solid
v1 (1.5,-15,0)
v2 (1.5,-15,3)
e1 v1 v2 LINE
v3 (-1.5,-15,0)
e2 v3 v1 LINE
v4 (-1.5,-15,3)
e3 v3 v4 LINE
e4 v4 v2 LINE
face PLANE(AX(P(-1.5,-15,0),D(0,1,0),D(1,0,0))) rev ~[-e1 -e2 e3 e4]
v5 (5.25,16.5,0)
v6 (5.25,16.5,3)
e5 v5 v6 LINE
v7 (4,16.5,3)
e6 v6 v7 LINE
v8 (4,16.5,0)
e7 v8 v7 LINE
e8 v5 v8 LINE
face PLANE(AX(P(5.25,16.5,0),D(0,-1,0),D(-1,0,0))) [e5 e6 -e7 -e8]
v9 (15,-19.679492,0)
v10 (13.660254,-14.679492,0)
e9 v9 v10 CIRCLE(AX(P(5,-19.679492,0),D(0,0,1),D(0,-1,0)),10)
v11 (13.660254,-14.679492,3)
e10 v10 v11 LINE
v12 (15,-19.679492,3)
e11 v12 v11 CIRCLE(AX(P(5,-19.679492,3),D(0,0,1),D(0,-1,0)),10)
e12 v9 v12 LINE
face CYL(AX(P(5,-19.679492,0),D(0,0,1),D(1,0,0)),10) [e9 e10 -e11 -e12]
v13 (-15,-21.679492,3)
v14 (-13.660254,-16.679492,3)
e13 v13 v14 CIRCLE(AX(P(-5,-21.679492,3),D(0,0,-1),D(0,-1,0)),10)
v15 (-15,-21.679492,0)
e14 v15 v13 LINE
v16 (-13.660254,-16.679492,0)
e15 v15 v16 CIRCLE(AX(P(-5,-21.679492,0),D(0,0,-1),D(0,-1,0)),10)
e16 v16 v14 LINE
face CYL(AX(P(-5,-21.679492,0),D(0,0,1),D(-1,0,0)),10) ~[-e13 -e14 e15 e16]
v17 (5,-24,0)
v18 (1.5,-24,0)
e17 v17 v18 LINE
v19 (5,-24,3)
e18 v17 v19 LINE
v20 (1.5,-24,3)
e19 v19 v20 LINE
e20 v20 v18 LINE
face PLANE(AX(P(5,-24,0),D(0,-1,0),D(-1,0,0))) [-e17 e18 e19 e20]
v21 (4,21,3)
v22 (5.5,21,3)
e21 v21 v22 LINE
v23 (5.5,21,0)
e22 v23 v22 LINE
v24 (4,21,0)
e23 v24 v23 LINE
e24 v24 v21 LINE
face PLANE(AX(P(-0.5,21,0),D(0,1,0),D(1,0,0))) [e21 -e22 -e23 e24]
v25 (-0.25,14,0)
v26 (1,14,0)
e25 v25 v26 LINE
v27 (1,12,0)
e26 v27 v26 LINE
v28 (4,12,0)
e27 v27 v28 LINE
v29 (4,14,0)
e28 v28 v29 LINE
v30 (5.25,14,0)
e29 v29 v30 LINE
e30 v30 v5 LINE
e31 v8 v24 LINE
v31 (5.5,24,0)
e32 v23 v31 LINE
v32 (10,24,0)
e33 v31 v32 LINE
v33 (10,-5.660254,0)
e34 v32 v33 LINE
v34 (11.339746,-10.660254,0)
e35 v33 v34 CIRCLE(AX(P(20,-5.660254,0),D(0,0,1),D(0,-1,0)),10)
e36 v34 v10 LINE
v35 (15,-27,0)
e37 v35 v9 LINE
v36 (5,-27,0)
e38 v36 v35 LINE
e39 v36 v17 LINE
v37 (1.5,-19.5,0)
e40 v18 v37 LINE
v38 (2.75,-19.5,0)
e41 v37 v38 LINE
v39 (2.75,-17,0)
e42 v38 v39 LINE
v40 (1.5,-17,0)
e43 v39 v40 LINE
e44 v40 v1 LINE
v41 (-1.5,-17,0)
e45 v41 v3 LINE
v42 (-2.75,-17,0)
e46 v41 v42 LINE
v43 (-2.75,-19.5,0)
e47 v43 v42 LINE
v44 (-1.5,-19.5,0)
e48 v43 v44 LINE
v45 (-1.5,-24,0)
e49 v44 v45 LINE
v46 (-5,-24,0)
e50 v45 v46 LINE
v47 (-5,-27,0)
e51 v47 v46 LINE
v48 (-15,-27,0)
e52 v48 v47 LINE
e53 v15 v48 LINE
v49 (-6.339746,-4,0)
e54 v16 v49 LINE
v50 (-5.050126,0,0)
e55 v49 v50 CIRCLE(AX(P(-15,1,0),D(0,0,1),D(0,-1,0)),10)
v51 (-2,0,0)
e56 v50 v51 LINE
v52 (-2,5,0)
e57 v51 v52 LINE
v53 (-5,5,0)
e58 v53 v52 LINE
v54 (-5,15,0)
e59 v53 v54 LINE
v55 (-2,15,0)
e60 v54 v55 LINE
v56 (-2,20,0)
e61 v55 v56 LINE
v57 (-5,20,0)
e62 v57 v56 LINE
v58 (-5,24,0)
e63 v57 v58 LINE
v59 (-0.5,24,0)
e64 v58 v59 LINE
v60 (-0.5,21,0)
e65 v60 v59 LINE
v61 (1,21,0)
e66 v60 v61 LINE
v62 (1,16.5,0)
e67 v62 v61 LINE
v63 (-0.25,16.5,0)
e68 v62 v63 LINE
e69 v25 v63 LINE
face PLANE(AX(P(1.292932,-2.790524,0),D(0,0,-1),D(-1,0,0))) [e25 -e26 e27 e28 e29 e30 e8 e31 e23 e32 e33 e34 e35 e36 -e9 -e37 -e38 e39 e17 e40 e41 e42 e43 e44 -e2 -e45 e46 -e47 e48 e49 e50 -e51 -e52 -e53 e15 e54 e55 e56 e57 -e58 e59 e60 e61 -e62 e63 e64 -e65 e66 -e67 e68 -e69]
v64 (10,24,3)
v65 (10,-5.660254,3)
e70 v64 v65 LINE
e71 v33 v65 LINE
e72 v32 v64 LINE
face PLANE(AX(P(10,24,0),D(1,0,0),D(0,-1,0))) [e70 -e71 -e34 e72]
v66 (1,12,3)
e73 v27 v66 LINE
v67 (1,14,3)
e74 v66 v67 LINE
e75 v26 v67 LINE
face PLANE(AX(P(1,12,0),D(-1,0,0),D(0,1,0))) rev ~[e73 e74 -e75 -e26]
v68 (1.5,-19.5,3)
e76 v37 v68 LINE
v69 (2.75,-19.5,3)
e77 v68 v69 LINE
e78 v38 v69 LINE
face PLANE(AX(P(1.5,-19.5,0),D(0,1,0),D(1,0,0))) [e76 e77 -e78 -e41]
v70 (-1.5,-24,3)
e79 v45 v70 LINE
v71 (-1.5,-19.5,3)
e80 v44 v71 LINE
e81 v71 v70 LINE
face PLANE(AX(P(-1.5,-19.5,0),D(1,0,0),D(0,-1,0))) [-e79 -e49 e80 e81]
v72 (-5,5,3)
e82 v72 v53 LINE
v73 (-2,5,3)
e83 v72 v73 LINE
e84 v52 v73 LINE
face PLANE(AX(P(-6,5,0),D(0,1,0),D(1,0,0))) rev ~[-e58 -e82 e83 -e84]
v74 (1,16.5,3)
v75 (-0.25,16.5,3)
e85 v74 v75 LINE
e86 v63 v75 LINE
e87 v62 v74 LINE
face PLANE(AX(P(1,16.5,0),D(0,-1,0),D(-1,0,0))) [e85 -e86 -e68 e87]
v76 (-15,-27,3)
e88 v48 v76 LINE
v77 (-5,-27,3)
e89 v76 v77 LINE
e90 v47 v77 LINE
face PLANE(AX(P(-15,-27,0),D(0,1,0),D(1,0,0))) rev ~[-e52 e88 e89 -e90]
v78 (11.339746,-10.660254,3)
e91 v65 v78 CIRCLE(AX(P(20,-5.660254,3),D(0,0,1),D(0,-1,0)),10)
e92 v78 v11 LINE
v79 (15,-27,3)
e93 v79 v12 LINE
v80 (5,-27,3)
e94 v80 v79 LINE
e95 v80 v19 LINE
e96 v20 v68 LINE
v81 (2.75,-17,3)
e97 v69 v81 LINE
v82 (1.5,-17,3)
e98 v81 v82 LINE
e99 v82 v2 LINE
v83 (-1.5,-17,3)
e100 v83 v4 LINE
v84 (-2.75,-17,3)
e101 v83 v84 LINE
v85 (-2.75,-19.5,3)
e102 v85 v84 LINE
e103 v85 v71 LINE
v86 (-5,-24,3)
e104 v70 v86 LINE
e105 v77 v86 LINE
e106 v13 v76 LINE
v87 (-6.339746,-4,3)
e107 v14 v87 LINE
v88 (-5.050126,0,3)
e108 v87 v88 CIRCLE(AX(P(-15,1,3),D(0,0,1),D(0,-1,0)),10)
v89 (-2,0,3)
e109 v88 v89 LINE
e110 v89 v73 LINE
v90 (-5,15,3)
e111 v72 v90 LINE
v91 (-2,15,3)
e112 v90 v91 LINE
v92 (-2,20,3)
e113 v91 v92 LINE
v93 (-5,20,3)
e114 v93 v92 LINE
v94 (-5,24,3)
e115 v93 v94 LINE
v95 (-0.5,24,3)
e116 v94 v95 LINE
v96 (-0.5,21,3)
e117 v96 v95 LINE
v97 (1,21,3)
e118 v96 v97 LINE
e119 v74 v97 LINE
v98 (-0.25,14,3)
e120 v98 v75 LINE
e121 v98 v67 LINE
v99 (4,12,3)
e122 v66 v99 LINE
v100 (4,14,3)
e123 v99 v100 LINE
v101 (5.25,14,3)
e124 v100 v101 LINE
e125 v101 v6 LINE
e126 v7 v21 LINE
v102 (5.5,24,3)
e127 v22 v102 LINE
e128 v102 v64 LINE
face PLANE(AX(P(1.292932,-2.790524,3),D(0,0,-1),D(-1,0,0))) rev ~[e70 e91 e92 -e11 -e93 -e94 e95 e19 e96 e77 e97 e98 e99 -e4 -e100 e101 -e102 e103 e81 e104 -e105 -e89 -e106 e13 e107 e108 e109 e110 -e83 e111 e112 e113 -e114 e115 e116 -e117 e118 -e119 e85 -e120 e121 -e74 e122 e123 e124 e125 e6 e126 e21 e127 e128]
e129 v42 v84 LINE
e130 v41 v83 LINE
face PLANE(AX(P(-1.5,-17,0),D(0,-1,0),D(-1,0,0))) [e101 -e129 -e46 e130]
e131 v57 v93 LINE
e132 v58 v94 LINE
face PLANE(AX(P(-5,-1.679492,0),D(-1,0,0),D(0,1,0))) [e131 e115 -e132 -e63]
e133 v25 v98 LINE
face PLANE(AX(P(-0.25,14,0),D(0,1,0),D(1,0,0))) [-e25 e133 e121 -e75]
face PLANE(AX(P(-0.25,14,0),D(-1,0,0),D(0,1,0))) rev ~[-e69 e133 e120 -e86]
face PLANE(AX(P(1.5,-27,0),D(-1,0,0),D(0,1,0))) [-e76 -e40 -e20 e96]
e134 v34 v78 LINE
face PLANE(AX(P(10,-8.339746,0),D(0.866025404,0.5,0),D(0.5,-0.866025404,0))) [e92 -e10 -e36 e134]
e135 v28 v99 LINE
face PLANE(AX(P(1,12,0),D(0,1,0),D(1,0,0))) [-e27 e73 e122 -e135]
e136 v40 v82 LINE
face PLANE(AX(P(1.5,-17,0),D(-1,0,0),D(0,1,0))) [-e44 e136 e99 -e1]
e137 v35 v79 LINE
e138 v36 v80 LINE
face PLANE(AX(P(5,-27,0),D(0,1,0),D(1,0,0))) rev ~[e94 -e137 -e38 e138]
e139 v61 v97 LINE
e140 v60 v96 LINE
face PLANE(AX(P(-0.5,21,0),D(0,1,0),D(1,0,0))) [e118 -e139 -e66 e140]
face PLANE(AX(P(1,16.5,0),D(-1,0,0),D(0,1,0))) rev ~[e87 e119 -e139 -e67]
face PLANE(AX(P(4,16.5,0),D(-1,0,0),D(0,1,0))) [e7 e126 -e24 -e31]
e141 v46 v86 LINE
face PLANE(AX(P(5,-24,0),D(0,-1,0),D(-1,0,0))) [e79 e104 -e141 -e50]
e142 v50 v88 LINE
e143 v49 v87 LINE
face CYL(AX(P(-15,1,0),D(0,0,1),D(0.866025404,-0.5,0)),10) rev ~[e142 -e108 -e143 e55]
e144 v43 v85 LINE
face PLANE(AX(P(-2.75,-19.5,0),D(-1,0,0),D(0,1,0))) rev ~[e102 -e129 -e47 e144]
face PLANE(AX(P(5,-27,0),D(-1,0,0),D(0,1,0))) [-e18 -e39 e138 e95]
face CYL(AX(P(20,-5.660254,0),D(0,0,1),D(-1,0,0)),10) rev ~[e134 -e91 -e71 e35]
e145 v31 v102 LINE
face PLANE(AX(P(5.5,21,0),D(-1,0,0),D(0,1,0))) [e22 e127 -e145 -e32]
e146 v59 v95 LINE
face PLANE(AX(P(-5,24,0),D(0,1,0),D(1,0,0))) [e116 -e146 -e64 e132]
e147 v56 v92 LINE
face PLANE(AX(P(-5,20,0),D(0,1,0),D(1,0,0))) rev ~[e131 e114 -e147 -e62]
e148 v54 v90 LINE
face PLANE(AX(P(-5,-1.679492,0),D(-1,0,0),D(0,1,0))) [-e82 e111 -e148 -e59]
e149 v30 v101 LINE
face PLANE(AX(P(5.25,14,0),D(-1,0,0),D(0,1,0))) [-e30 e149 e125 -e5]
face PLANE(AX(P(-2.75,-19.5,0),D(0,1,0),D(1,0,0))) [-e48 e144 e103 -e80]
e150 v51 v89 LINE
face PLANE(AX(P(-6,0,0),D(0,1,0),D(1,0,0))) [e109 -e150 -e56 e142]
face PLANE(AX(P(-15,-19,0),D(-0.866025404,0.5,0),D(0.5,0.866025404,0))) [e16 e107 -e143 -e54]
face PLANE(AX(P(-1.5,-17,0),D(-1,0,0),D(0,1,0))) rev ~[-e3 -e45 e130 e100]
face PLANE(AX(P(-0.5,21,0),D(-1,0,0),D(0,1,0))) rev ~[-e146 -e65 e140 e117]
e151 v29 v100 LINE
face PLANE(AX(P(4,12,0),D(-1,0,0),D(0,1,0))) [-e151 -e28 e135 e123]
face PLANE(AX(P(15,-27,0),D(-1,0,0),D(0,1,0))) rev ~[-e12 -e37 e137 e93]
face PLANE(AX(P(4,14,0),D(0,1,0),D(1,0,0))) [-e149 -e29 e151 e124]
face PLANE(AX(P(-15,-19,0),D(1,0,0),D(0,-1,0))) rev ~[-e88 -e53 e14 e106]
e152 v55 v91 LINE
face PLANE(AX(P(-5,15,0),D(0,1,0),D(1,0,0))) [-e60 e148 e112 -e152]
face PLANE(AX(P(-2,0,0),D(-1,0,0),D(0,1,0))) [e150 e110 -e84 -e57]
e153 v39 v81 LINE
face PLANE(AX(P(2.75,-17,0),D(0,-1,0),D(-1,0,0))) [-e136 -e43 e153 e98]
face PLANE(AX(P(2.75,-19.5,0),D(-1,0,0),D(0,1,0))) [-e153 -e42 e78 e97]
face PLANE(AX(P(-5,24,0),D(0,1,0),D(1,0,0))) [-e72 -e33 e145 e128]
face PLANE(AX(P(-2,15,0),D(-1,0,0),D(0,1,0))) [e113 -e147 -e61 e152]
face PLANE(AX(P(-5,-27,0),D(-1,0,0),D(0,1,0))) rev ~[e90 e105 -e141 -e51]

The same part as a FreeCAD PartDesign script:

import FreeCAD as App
import Part
import Sketcher
Q = App.Units.Quantity


def edges_at(feature, points):
    """Names of the edges that pass closest to the given points."""
    edges = feature.Shape.Edges
    near = lambda p: min(range(len(edges)), key=lambda i: edges[i].distToShape(Part.Vertex(*p))[0])
    return sorted({f"Edge{near(p) + 1}" for p in points})

doc = App.newDocument("Part")
body = doc.addObject("PartDesign::Body", "Body")

# Sketch on XY plane
sketch1 = body.newObject("Sketcher::SketchObject", "Sketch")
sketch1.AttachmentSupport = (doc.getObject("XY_Plane"), [""])
sketch1.MapMode = "FlatFace"
sketch1.addGeometry([
    Part.LineSegment(App.Vector(15, -27, 0), App.Vector(15, -17, 0)),  # 0
    Part.LineSegment(App.Vector(15, -17, 0), App.Vector(10, -8.339746, 0)),  # 1
    Part.LineSegment(App.Vector(10, -8.339746, 0), App.Vector(10, 24, 0)),  # 2
    Part.LineSegment(App.Vector(10, 24, 0), App.Vector(-5, 24, 0)),  # 3
    Part.LineSegment(App.Vector(-5, 24, 0), App.Vector(-5, -1.679492, 0)),  # 4
    Part.LineSegment(App.Vector(-5, -1.679492, 0), App.Vector(-15, -19, 0)),  # 5
    Part.LineSegment(App.Vector(-15, -19, 0), App.Vector(-15, -27, 0)),  # 6
    Part.LineSegment(App.Vector(-15, -27, 0), App.Vector(-5, -27, 0)),  # 7
    Part.LineSegment(App.Vector(-5, -27, 0), App.Vector(-5, -24, 0)),  # 8
    Part.LineSegment(App.Vector(-5, -24, 0), App.Vector(5, -24, 0)),  # 9
    Part.LineSegment(App.Vector(5, -24, 0), App.Vector(5, -27, 0)),  # 10
    Part.LineSegment(App.Vector(5, -27, 0), App.Vector(15, -27, 0)),  # 11
], False)
sketch1.addConstraint([
    Sketcher.Constraint("Coincident", 0, 2, 1, 1),
    Sketcher.Constraint("Coincident", 1, 2, 2, 1),
    Sketcher.Constraint("Coincident", 2, 2, 3, 1),
    Sketcher.Constraint("Coincident", 3, 2, 4, 1),
    Sketcher.Constraint("Coincident", 4, 2, 5, 1),
    Sketcher.Constraint("Coincident", 5, 2, 6, 1),
    Sketcher.Constraint("Coincident", 6, 2, 7, 1),
    Sketcher.Constraint("Coincident", 7, 2, 8, 1),
    Sketcher.Constraint("Coincident", 8, 2, 9, 1),
    Sketcher.Constraint("Coincident", 9, 2, 10, 1),
    Sketcher.Constraint("Coincident", 10, 2, 11, 1),
    Sketcher.Constraint("Coincident", 11, 2, 0, 1),
    Sketcher.Constraint("Vertical", 0),
    Sketcher.Constraint("Vertical", 2),
    Sketcher.Constraint("Horizontal", 3),
    Sketcher.Constraint("Vertical", 4),
    Sketcher.Constraint("Vertical", 6),
    Sketcher.Constraint("Horizontal", 7),
    Sketcher.Constraint("Vertical", 8),
    Sketcher.Constraint("Horizontal", 9),
    Sketcher.Constraint("Vertical", 10),
    Sketcher.Constraint("Horizontal", 11),
    Sketcher.Constraint("Symmetric", 3, 2, 9, 2, -1, 1),
    Sketcher.Constraint("Symmetric", 7, 2, 10, 2, -2),
    Sketcher.Constraint("Equal", 7, 9),
    Sketcher.Constraint("Equal", 9, 11),
    Sketcher.Constraint("Equal", 11, 0),
    Sketcher.Constraint("DistanceX", 3, 2, 3, 1, 15.0),
    Sketcher.Constraint("DistanceX", 7, 1, 7, 2, 10.0),
    Sketcher.Constraint("DistanceY", 6, 2, 6, 1, 8.0),
    Sketcher.Constraint("DistanceY", 8, 1, 8, 2, 3.0),
    Sketcher.Constraint("Angle", 1, Q("120 deg")),
    Sketcher.Constraint("Angle", 5, Q("-120 deg")),
    Sketcher.Constraint("DistanceY", 0, 2, -1, 1, 17.0),
])
pad1 = body.newObject("PartDesign::Pad", "Pad")
pad1.Profile = sketch1
pad1.Length = 3
doc.recompute()

fillet = body.newObject("PartDesign::Fillet", "Fillet")
fillet.Base = (pad1, edges_at(pad1, [
    (-15, -19, 1.5),
    (-5, -1.679, 1.5),
    (10, -8.34, 1.5),
    (15, -17, 1.5),
]))
fillet.Radius = 10

# Sketch on XY plane
sketch2 = body.newObject("Sketcher::SketchObject", "Sketch001")
sketch2.AttachmentSupport = (doc.getObject("XY_Plane"), [""])
sketch2.MapMode = "FlatFace"
sketch2.addGeometry([
    Part.LineSegment(App.Vector(-0.5, 24, 0), App.Vector(-0.5, 21, 0)),
    Part.LineSegment(App.Vector(-0.5, 21, 0), App.Vector(5.5, 21, 0)),
    Part.LineSegment(App.Vector(5.5, 21, 0), App.Vector(5.5, 24, 0)),
    Part.LineSegment(App.Vector(5.5, 24, 0), App.Vector(-0.5, 24, 0)),
], False)
sketch2.addConstraint([
    Sketcher.Constraint("Coincident", 0, 2, 1, 1),
    Sketcher.Constraint("Coincident", 1, 2, 2, 1),
    Sketcher.Constraint("Coincident", 2, 2, 3, 1),
    Sketcher.Constraint("Coincident", 3, 2, 0, 1),
    Sketcher.Constraint("Vertical", 0),
    Sketcher.Constraint("Horizontal", 1),
    Sketcher.Constraint("Vertical", 2),
    Sketcher.Constraint("Horizontal", 3),
    Sketcher.Constraint("DistanceX", 1, 1, 1, 2, 6.0),
    Sketcher.Constraint("DistanceY", 0, 2, 0, 1, 3.0),
    Sketcher.Constraint("DistanceY", -1, 1, 0, 2, 21.0),
    Sketcher.Constraint("DistanceX", 0, 2, -1, 1, 0.5),
])
pocket1 = body.newObject("PartDesign::Pocket", "Pocket")
pocket1.Profile = sketch2
pocket1.Length = 3
pocket1.Reversed = True

# Sketch on XY plane
sketch3 = body.newObject("Sketcher::SketchObject", "Sketch002")
sketch3.AttachmentSupport = (doc.getObject("XY_Plane"), [""])
sketch3.MapMode = "FlatFace"
sketch3.addGeometry([
    Part.LineSegment(App.Vector(-0.25, 16.5, 0), App.Vector(-0.25, 14, 0)),  # 0
    Part.LineSegment(App.Vector(-0.25, 14, 0), App.Vector(1, 14, 0)),  # 1
    Part.LineSegment(App.Vector(1, 14, 0), App.Vector(1, 12, 0)),  # 2
    Part.LineSegment(App.Vector(1, 12, 0), App.Vector(4, 12, 0)),  # 3
    Part.LineSegment(App.Vector(4, 12, 0), App.Vector(4, 14, 0)),  # 4
    Part.LineSegment(App.Vector(4, 14, 0), App.Vector(5.25, 14, 0)),  # 5
    Part.LineSegment(App.Vector(5.25, 14, 0), App.Vector(5.25, 16.5, 0)),  # 6
    Part.LineSegment(App.Vector(5.25, 16.5, 0), App.Vector(4, 16.5, 0)),  # 7
    Part.LineSegment(App.Vector(4, 16.5, 0), App.Vector(4, 24, 0)),  # 8
    Part.LineSegment(App.Vector(4, 24, 0), App.Vector(1, 24, 0)),  # 9
    Part.LineSegment(App.Vector(1, 24, 0), App.Vector(1, 16.5, 0)),  # 10
    Part.LineSegment(App.Vector(1, 16.5, 0), App.Vector(-0.25, 16.5, 0)),  # 11
], False)
sketch3.addConstraint([
    Sketcher.Constraint("Coincident", 0, 2, 1, 1),
    Sketcher.Constraint("Coincident", 1, 2, 2, 1),
    Sketcher.Constraint("Coincident", 2, 2, 3, 1),
    Sketcher.Constraint("Coincident", 3, 2, 4, 1),
    Sketcher.Constraint("Coincident", 4, 2, 5, 1),
    Sketcher.Constraint("Coincident", 5, 2, 6, 1),
    Sketcher.Constraint("Coincident", 6, 2, 7, 1),
    Sketcher.Constraint("Coincident", 7, 2, 8, 1),
    Sketcher.Constraint("Coincident", 8, 2, 9, 1),
    Sketcher.Constraint("Coincident", 9, 2, 10, 1),
    Sketcher.Constraint("Coincident", 10, 2, 11, 1),
    Sketcher.Constraint("Coincident", 11, 2, 0, 1),
    Sketcher.Constraint("Vertical", 0),
    Sketcher.Constraint("Horizontal", 1),
    Sketcher.Constraint("Vertical", 2),
    Sketcher.Constraint("Horizontal", 3),
    Sketcher.Constraint("Vertical", 4),
    Sketcher.Constraint("Horizontal", 5),
    Sketcher.Constraint("Vertical", 6),
    Sketcher.Constraint("Horizontal", 7),
    Sketcher.Constraint("Vertical", 8),
    Sketcher.Constraint("Horizontal", 9),
    Sketcher.Constraint("Vertical", 10),
    Sketcher.Constraint("Horizontal", 11),
    Sketcher.Constraint("Horizontal", 1, 2, 4, 2),
    Sketcher.Constraint("Horizontal", 7, 2, 10, 2),
    Sketcher.Constraint("Vertical", 4, 2, 7, 2),
    Sketcher.Constraint("Vertical", 2, 2, 9, 2),
    Sketcher.Constraint("Equal", 1, 5),
    Sketcher.Constraint("DistanceX", 3, 1, 3, 2, 3.0),
    Sketcher.Constraint("DistanceY", 2, 2, 2, 1, 2.0),
    Sketcher.Constraint("DistanceY", 0, 2, 0, 1, 2.5),
    Sketcher.Constraint("DistanceY", 8, 1, 8, 2, 7.5),
    Sketcher.Constraint("DistanceY", -1, 1, 0, 2, 14.0),
    Sketcher.Constraint("DistanceX", -1, 1, 1, 2, 1.0),
    Sketcher.Constraint("DistanceX", 1, 1, 1, 2, 1.25),
])
pocket2 = body.newObject("PartDesign::Pocket", "Pocket001")
pocket2.Profile = sketch3
pocket2.Type = "ThroughAll"
pocket2.Reversed = True

# Sketch on XY plane
sketch4 = body.newObject("Sketcher::SketchObject", "Sketch003")
sketch4.AttachmentSupport = (doc.getObject("XY_Plane"), [""])
sketch4.MapMode = "FlatFace"
sketch4.addGeometry([
    Part.LineSegment(App.Vector(-5, 20, 0), App.Vector(-5, 15, 0)),  # 0
    Part.LineSegment(App.Vector(-5, 15, 0), App.Vector(-2, 15, 0)),  # 1
    Part.LineSegment(App.Vector(-2, 15, 0), App.Vector(-2, 20, 0)),  # 2
    Part.LineSegment(App.Vector(-2, 20, 0), App.Vector(-5, 20, 0)),  # 3
    Part.LineSegment(App.Vector(-6, 5, 0), App.Vector(-6, 0, 0)),  # 4
    Part.LineSegment(App.Vector(-6, 0, 0), App.Vector(-2, 0, 0)),  # 5
    Part.LineSegment(App.Vector(-2, 0, 0), App.Vector(-2, 5, 0)),  # 6
    Part.LineSegment(App.Vector(-2, 5, 0), App.Vector(-6, 5, 0)),  # 7
], False)
sketch4.addConstraint([
    Sketcher.Constraint("Coincident", 0, 2, 1, 1),
    Sketcher.Constraint("Coincident", 1, 2, 2, 1),
    Sketcher.Constraint("Coincident", 2, 2, 3, 1),
    Sketcher.Constraint("Coincident", 3, 2, 0, 1),
    Sketcher.Constraint("Coincident", 4, 2, 5, 1),
    Sketcher.Constraint("Coincident", 5, 2, 6, 1),
    Sketcher.Constraint("Coincident", 6, 2, 7, 1),
    Sketcher.Constraint("Coincident", 7, 2, 4, 1),
    Sketcher.Constraint("Vertical", 0),
    Sketcher.Constraint("Horizontal", 1),
    Sketcher.Constraint("Vertical", 2),
    Sketcher.Constraint("Horizontal", 3),
    Sketcher.Constraint("Vertical", 4),
    Sketcher.Constraint("Horizontal", 5),
    Sketcher.Constraint("Vertical", 6),
    Sketcher.Constraint("Horizontal", 7),
    Sketcher.Constraint("PointOnObject", 4, 2, -1),
    Sketcher.Constraint("Vertical", 2, 2, 5, 2),
    Sketcher.Constraint("Equal", 2, 4),
    Sketcher.Constraint("DistanceX", 1, 1, 1, 2, 3.0),
    Sketcher.Constraint("DistanceX", 5, 1, 5, 2, 4.0),
    Sketcher.Constraint("DistanceY", 0, 2, 0, 1, 5.0),
    Sketcher.Constraint("DistanceX", 0, 2, -1, 1, 5.0),
    Sketcher.Constraint("DistanceY", -1, 1, 0, 2, 15.0),
])
pocket3 = body.newObject("PartDesign::Pocket", "Pocket002")
pocket3.Profile = sketch4
pocket3.Type = "ThroughAll"
pocket3.Reversed = True

# Sketch on XY plane
sketch5 = body.newObject("Sketcher::SketchObject", "Sketch004")
sketch5.AttachmentSupport = (doc.getObject("XY_Plane"), [""])
sketch5.MapMode = "FlatFace"
sketch5.addGeometry([
    Part.LineSegment(App.Vector(-1.5, -27, 0), App.Vector(1.5, -27, 0)),  # 0
    Part.LineSegment(App.Vector(1.5, -27, 0), App.Vector(1.5, -19.5, 0)),  # 1
    Part.LineSegment(App.Vector(1.5, -19.5, 0), App.Vector(2.75, -19.5, 0)),  # 2
    Part.LineSegment(App.Vector(2.75, -19.5, 0), App.Vector(2.75, -17, 0)),  # 3
    Part.LineSegment(App.Vector(2.75, -17, 0), App.Vector(1.5, -17, 0)),  # 4
    Part.LineSegment(App.Vector(1.5, -17, 0), App.Vector(1.5, -15, 0)),  # 5
    Part.LineSegment(App.Vector(1.5, -15, 0), App.Vector(-1.5, -15, 0)),  # 6
    Part.LineSegment(App.Vector(-1.5, -15, 0), App.Vector(-1.5, -17, 0)),  # 7
    Part.LineSegment(App.Vector(-1.5, -17, 0), App.Vector(-2.75, -17, 0)),  # 8
    Part.LineSegment(App.Vector(-2.75, -17, 0), App.Vector(-2.75, -19.5, 0)),  # 9
    Part.LineSegment(App.Vector(-2.75, -19.5, 0), App.Vector(-1.5, -19.5, 0)),  # 10
    Part.LineSegment(App.Vector(-1.5, -19.5, 0), App.Vector(-1.5, -27, 0)),  # 11
], False)
sketch5.addConstraint([
    Sketcher.Constraint("Coincident", 0, 2, 1, 1),
    Sketcher.Constraint("Coincident", 1, 2, 2, 1),
    Sketcher.Constraint("Coincident", 2, 2, 3, 1),
    Sketcher.Constraint("Coincident", 3, 2, 4, 1),
    Sketcher.Constraint("Coincident", 4, 2, 5, 1),
    Sketcher.Constraint("Coincident", 5, 2, 6, 1),
    Sketcher.Constraint("Coincident", 6, 2, 7, 1),
    Sketcher.Constraint("Coincident", 7, 2, 8, 1),
    Sketcher.Constraint("Coincident", 8, 2, 9, 1),
    Sketcher.Constraint("Coincident", 9, 2, 10, 1),
    Sketcher.Constraint("Coincident", 10, 2, 11, 1),
    Sketcher.Constraint("Coincident", 11, 2, 0, 1),
    Sketcher.Constraint("Horizontal", 0),
    Sketcher.Constraint("Vertical", 1),
    Sketcher.Constraint("Horizontal", 2),
    Sketcher.Constraint("Vertical", 3),
    Sketcher.Constraint("Horizontal", 4),
    Sketcher.Constraint("Vertical", 5),
    Sketcher.Constraint("Horizontal", 6),
    Sketcher.Constraint("Vertical", 7),
    Sketcher.Constraint("Horizontal", 8),
    Sketcher.Constraint("Vertical", 9),
    Sketcher.Constraint("Horizontal", 10),
    Sketcher.Constraint("Vertical", 11),
    Sketcher.Constraint("Symmetric", 4, 2, 7, 2, -2),
    Sketcher.Constraint("Symmetric", 2, 2, 9, 2, -2),
    Sketcher.Constraint("Vertical", 1, 2, 4, 2),
    Sketcher.Constraint("Vertical", 7, 2, 10, 2),
    Sketcher.Constraint("DistanceX", 0, 1, 0, 2, 3.0),
    Sketcher.Constraint("DistanceY", 5, 1, 5, 2, 2.0),
    Sketcher.Constraint("DistanceY", 1, 1, 1, 2, 7.5),
    Sketcher.Constraint("DistanceY", 3, 1, 3, 2, 2.5),
    Sketcher.Constraint("DistanceY", 0, 2, -1, 1, 27.0),
    Sketcher.Constraint("DistanceX", 2, 1, 2, 2, 1.25),
])
pocket4 = body.newObject("PartDesign::Pocket", "Pocket003")
pocket4.Profile = sketch5
pocket4.Type = "ThroughAll"
pocket4.Reversed = True

doc.recompute()
